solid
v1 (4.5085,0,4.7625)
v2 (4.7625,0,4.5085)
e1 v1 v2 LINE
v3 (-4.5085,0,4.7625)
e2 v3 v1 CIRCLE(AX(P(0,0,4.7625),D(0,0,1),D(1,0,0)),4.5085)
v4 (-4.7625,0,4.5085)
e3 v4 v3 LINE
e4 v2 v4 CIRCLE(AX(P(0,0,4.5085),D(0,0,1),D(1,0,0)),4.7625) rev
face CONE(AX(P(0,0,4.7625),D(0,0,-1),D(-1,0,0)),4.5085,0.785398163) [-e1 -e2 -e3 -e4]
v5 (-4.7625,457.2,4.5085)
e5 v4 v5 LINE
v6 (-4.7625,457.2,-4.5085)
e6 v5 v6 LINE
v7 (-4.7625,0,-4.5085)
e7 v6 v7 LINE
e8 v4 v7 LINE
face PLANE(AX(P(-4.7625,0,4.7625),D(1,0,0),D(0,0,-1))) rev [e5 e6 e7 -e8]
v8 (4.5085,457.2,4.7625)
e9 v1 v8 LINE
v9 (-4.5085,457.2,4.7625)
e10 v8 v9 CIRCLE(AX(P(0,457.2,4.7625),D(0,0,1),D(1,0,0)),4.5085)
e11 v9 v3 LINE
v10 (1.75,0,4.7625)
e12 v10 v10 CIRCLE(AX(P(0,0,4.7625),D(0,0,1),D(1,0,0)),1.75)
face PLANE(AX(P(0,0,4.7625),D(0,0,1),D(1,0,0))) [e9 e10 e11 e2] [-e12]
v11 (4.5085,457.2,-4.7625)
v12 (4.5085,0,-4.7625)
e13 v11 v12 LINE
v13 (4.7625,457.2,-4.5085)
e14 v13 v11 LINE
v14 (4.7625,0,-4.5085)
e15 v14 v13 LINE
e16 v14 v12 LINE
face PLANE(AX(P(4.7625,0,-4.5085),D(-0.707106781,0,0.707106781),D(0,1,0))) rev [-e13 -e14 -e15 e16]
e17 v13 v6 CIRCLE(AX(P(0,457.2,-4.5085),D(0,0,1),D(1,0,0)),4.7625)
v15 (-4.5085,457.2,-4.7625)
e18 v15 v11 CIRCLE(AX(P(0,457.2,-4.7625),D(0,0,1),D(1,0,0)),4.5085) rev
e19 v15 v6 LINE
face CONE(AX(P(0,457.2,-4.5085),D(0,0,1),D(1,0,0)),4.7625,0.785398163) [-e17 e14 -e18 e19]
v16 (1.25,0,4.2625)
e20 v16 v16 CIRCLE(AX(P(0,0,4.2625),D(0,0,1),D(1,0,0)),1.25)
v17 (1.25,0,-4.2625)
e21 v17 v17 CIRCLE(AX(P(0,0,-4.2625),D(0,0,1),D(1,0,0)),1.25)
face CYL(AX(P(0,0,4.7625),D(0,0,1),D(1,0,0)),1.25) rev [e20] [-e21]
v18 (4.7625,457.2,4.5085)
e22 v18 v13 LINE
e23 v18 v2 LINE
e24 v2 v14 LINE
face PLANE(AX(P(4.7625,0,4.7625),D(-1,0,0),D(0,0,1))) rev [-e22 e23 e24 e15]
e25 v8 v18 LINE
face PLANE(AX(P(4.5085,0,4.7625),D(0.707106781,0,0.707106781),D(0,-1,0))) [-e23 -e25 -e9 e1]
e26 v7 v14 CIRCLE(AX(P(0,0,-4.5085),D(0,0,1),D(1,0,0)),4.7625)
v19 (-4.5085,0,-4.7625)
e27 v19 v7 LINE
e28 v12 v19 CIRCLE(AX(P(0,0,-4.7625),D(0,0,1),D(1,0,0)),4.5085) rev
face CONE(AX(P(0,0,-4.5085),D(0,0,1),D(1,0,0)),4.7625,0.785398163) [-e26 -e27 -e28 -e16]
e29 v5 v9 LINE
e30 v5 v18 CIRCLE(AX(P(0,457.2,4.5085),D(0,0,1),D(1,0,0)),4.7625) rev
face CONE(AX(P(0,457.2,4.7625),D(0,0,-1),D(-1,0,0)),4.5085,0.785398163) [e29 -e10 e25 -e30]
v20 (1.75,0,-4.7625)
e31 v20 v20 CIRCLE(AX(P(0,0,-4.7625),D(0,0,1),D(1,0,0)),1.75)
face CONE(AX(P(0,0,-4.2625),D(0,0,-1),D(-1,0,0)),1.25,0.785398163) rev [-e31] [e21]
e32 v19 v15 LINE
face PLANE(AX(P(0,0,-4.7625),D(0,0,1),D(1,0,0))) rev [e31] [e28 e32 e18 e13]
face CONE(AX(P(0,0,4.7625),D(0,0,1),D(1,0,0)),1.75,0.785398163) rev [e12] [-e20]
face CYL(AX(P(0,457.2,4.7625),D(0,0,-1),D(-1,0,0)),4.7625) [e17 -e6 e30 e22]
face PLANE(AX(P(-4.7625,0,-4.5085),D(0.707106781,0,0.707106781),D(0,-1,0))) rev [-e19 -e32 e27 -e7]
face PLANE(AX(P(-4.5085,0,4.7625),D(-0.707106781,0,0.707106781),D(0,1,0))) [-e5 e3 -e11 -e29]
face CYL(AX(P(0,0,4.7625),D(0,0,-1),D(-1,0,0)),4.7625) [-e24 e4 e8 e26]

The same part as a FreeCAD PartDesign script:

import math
import FreeCAD as App
import Part
import Sketcher
Q = App.Units.Quantity


def edges_at(feature, points):
    """Names of the edges that pass closest to the given points."""
    edges = feature.Shape.Edges
    near = lambda p: min(range(len(edges)), key=lambda i: edges[i].distToShape(Part.Vertex(*p))[0])
    return sorted({f"Edge{near(p) + 1}" for p in points})

doc = App.newDocument("Part")
body = doc.addObject("PartDesign::Body", "Body")

sketch1 = body.newObject("Sketcher::SketchObject", "Sketch")
sketch1.AttachmentSupport = (doc.getObject("XY_Plane"), [""])
sketch1.MapMode = "FlatFace"
sketch1.addGeometry(Part.LineSegment(App.Vector(-4.7625, 457.2, 0), App.Vector(-4.7625, 0, 0)), False)
sketch1.addGeometry(Part.ArcOfCircle(Part.Circle(App.Vector(0, 0, 0), App.Vector(0, 0, 1), 4.7625), math.radians(180), math.radians(360)), False)
sketch1.addGeometry(Part.LineSegment(App.Vector(4.7625, 0, 0), App.Vector(4.7625, 457.2, 0)), False)
sketch1.addGeometry(Part.ArcOfCircle(Part.Circle(App.Vector(0, 457.2, 0), App.Vector(0, 0, 1), 4.7625), math.radians(0), math.radians(180)), False)
sketch1.addConstraint(Sketcher.Constraint("Tangent", 0, 2, 1, 1))
sketch1.addConstraint(Sketcher.Constraint("Tangent", 1, 2, 2, 1))
sketch1.addConstraint(Sketcher.Constraint("Tangent", 2, 2, 3, 1))
sketch1.addConstraint(Sketcher.Constraint("Tangent", 3, 2, 0, 1))
sketch1.addConstraint(Sketcher.Constraint("Vertical", 0))
sketch1.addConstraint(Sketcher.Constraint("Vertical", 2))
sketch1.addConstraint(Sketcher.Constraint("Coincident", 1, 3, -1, 1))
sketch1.addConstraint(Sketcher.Constraint("DistanceY", 0, 2, 0, 1, Q("18 in")))
sketch1.addConstraint(Sketcher.Constraint("Radius", 1, Q("0.1875 in")))
pad1 = body.newObject("PartDesign::Pad", "Pad")
pad1.Profile = sketch1
pad1.Length = Q("0.375 in")
pad1.Midplane = True

sketch2 = body.newObject("Sketcher::SketchObject", "Sketch001")
sketch2.AttachmentSupport = (doc.getObject("YZ_Plane"), [""])
sketch2.MapMode = "FlatFace"
sketch2.addGeometry(Part.LineSegment(App.Vector(0, -4.7625, 0), App.Vector(0, 4.7625, 0)), False)
sketch2.addGeometry(Part.LineSegment(App.Vector(0, 4.7625, 0), App.Vector(-1.75, 4.7625, 0)), False)
sketch2.addGeometry(Part.LineSegment(App.Vector(-1.75, 4.7625, 0), App.Vector(-1.25, 4.2625, 0)), False)
sketch2.addGeometry(Part.LineSegment(App.Vector(-1.25, 4.2625, 0), App.Vector(-1.25, -4.2625, 0)), False)
sketch2.addGeometry(Part.LineSegment(App.Vector(-1.25, -4.2625, 0), App.Vector(-1.75, -4.7625, 0)), False)
sketch2.addGeometry(Part.LineSegment(App.Vector(-1.75, -4.7625, 0), App.Vector(0, -4.7625, 0)), False)
sketch2.addConstraint(Sketcher.Constraint("Coincident", 0, 2, 1, 1))
sketch2.addConstraint(Sketcher.Constraint("Coincident", 1, 2, 2, 1))
sketch2.addConstraint(Sketcher.Constraint("Coincident", 2, 2, 3, 1))
sketch2.addConstraint(Sketcher.Constraint("Coincident", 3, 2, 4, 1))
sketch2.addConstraint(Sketcher.Constraint("Coincident", 4, 2, 5, 1))
sketch2.addConstraint(Sketcher.Constraint("Coincident", 5, 2, 0, 1))
sketch2.addConstraint(Sketcher.Constraint("Vertical", 0))
sketch2.addConstraint(Sketcher.Constraint("Horizontal", 1))
sketch2.addConstraint(Sketcher.Constraint("Vertical", 3))
sketch2.addConstraint(Sketcher.Constraint("Horizontal", 5))
sketch2.addConstraint(Sketcher.Constraint("Symmetric", 0, 2, 5, 2, -1, 1))
sketch2.addConstraint(Sketcher.Constraint("Perpendicular", 2, 4))
sketch2.addConstraint(Sketcher.Constraint("Vertical", 1, 2, 4, 2))
sketch2.addConstraint(Sketcher.Constraint("Equal", 2, 4))
sketch2.addConstraint(Sketcher.Constraint("DistanceY", 0, 1, 0, 2, Q("0.375 in")))
sketch2.addConstraint(Sketcher.Constraint("DistanceX", 1, 2, 1, 1, Q("1.75 mm")))
sketch2.addConstraint(Sketcher.Constraint("DistanceY", 3, 2, 3, 1, Q("8.525 mm")))
groove = body.newObject("PartDesign::Groove", "Groove")
groove.Profile = sketch2
groove.ReferenceAxis = (sketch2, ["V_Axis"])
groove.Angle = 360
doc.recompute()

chamfer = body.newObject("PartDesign::Chamfer", "Chamfer")
chamfer.Base = (groove, edges_at(groove, [
    (0, 461.962, 4.763),
    (-4.763, 228.6, 4.763),
    (0, -4.763, 4.763),
    (-4.763, 228.6, -4.763),
    (0, 461.962, -4.763),
    (4.763, 228.6, -4.763),
    (0, -4.763, -4.763),
    (4.763, 228.6, 4.763),
]))
chamfer.Size = Q("0.01 in")

doc.recompute()
